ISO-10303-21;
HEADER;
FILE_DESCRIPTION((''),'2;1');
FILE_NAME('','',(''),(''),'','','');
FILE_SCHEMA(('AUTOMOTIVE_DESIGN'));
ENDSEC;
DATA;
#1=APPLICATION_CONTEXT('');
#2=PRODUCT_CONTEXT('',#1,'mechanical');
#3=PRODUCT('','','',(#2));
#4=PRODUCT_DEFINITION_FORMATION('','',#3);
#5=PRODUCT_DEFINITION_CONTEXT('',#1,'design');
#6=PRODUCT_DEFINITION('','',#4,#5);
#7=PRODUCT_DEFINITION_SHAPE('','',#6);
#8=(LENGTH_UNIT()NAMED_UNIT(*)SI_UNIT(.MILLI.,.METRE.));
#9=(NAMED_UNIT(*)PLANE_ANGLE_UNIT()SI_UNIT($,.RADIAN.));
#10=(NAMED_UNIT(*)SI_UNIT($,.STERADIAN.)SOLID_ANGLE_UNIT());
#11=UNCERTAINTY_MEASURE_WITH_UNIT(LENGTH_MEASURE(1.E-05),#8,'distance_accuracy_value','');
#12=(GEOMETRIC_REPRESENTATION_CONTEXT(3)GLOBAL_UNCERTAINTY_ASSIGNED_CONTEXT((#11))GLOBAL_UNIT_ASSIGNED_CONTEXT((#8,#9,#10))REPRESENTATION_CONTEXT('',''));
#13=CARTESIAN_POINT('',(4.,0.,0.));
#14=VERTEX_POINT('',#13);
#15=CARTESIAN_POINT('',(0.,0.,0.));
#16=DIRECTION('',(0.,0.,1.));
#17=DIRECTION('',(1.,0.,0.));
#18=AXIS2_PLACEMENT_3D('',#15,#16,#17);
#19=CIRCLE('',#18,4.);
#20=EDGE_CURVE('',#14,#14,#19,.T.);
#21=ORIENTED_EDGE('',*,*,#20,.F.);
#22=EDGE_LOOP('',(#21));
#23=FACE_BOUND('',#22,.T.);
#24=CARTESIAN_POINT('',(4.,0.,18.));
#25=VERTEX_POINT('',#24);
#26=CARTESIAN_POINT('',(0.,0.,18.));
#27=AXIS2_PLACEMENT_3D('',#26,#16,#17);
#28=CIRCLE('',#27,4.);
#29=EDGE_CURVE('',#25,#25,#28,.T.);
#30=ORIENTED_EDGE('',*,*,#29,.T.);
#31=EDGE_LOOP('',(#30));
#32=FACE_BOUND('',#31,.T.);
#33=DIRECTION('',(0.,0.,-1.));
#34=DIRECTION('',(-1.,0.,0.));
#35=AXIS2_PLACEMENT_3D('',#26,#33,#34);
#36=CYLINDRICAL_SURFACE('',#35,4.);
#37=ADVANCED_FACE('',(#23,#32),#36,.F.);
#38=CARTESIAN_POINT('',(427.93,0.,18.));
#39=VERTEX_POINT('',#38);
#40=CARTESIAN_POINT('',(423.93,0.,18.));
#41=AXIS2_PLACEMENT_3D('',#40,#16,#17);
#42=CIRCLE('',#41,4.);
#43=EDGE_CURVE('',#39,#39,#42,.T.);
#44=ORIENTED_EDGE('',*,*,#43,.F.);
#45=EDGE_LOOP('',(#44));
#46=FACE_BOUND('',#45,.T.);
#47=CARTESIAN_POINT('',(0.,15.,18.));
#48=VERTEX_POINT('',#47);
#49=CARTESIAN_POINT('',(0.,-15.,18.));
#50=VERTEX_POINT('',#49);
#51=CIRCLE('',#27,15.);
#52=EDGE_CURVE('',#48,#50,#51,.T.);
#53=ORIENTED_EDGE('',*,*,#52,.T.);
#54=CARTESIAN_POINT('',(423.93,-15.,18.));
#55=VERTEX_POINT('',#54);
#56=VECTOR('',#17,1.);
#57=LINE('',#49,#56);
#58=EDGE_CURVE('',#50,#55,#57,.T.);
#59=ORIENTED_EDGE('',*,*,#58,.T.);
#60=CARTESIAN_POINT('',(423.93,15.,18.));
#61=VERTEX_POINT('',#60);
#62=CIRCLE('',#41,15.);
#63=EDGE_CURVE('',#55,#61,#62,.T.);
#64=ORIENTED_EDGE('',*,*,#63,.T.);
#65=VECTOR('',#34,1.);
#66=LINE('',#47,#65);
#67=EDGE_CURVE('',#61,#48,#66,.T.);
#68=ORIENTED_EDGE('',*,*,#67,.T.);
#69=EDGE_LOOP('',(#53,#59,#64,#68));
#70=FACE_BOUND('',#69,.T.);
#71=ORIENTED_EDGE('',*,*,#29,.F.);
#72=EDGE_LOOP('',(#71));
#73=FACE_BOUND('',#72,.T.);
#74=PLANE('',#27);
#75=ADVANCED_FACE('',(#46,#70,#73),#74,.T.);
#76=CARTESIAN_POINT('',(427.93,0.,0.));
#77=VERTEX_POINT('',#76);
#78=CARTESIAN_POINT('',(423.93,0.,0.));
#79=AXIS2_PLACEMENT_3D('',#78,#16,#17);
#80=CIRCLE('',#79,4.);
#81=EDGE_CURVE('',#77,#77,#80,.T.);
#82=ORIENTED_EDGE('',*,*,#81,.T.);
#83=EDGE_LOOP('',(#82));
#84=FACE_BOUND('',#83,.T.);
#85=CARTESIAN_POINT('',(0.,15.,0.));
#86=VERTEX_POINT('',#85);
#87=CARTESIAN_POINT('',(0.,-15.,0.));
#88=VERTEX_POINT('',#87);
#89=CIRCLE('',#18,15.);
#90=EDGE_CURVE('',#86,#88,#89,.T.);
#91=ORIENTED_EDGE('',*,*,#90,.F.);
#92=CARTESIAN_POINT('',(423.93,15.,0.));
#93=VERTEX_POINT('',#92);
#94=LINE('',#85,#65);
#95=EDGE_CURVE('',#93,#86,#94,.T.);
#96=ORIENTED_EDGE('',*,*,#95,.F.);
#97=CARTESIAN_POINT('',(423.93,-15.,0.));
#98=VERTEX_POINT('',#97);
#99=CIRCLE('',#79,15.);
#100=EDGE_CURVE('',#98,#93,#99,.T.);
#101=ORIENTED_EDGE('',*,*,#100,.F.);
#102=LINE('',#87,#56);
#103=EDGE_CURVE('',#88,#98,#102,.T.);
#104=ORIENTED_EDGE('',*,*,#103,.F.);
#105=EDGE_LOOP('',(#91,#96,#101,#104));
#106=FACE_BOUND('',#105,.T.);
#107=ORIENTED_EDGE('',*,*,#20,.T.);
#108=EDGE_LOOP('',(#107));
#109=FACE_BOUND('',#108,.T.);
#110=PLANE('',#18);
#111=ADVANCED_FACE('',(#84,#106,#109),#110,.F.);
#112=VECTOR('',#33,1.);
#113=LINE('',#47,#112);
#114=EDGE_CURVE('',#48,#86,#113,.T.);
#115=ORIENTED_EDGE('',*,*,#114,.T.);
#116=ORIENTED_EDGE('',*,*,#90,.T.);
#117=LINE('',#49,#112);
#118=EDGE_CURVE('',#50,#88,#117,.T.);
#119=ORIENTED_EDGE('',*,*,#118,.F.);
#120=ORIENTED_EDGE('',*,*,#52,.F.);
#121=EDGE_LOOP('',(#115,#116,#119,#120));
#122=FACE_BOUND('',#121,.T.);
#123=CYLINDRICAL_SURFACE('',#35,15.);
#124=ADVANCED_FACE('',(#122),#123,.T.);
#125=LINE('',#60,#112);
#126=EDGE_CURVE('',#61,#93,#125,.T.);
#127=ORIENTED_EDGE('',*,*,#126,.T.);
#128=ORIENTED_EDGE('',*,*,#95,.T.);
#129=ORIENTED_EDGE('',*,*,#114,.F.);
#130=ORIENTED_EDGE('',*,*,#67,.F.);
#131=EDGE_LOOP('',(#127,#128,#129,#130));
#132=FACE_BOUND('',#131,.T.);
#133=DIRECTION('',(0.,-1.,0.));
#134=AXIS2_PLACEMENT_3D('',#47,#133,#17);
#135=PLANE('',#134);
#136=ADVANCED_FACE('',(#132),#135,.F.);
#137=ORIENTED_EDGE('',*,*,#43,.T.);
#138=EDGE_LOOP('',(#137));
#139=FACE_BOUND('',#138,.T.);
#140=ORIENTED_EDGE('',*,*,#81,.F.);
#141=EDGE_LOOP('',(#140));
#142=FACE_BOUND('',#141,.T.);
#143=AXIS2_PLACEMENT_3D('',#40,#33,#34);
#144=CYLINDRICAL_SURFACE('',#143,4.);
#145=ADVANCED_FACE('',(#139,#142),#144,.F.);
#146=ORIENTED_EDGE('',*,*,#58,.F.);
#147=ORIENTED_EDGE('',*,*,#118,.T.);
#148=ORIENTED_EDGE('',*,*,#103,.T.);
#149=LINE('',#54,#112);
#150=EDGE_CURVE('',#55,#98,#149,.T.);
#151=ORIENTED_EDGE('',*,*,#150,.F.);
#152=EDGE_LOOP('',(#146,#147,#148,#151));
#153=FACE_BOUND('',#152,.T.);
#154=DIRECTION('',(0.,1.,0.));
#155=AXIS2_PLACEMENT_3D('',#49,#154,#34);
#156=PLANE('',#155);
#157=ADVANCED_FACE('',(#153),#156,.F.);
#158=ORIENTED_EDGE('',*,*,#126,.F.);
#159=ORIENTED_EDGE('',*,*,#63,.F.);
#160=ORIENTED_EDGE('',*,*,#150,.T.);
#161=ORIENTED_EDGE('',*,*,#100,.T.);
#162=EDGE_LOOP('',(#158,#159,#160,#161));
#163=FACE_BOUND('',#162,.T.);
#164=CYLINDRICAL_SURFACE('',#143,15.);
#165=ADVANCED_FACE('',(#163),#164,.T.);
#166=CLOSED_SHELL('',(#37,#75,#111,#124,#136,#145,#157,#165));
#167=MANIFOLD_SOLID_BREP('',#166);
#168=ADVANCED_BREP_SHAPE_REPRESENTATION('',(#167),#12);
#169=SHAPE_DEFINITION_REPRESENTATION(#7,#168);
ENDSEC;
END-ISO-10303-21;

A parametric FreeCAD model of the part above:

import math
import FreeCAD as App
import Part
import Sketcher
from FreeCAD import Vector
Q = App.Units.Quantity

doc = App.newDocument("Part")
body = doc.addObject("PartDesign::Body", "Body")

# Sketch on XY plane
sketch1 = body.newObject("Sketcher::SketchObject", "Sketch")
sketch1.AttachmentSupport = (doc.getObject("XY_Plane"), [""])
sketch1.MapMode = "FlatFace"
sketch1.addGeometry(Part.LineSegment(Vector(423.9, 15, 0), Vector(0, 15, 0)), False)
sketch1.addGeometry(Part.ArcOfCircle(Part.Circle(Vector(0, 0, 0), Vector(0, 0, 1), 15), math.radians(90), math.radians(270)), False)
sketch1.addGeometry(Part.LineSegment(Vector(0, -15, 0), Vector(423.9, -15, 0)), False)
sketch1.addGeometry(Part.ArcOfCircle(Part.Circle(Vector(423.9, 0, 0), Vector(0, 0, 1), 15), math.radians(-90), math.radians(90)), False)
sketch1.addGeometry(Part.Circle(Vector(423.9, 0, 0), Vector(0, 0, 1), 4), False)
sketch1.addGeometry(Part.Circle(Vector(0, 0, 0), Vector(0, 0, 1), 4), False)
sketch1.addConstraint(Sketcher.Constraint("Tangent", 0, 2, 1, 1))
sketch1.addConstraint(Sketcher.Constraint("Tangent", 1, 2, 2, 1))
sketch1.addConstraint(Sketcher.Constraint("Tangent", 2, 2, 3, 1))
sketch1.addConstraint(Sketcher.Constraint("Tangent", 3, 2, 0, 1))
sketch1.addConstraint(Sketcher.Constraint("Horizontal", 0))
sketch1.addConstraint(Sketcher.Constraint("Horizontal", 2))
sketch1.addConstraint(Sketcher.Constraint("Coincident", 1, 3, -1, 1))
sketch1.addConstraint(Sketcher.Constraint("Coincident", 5, 3, -1, 1))
sketch1.addConstraint(Sketcher.Constraint("Coincident", 4, 3, 3, 3))
sketch1.addConstraint(Sketcher.Constraint("Equal", 4, 5))
sketch1.addConstraint(Sketcher.Constraint("Diameter", 4, Q("8 mm")))
sketch1.addConstraint(Sketcher.Constraint("Radius", 1, Q("15 mm")))
sketch1.addConstraint(Sketcher.Constraint("DistanceX", 0, 2, 0, 1, Q("423.93 mm")))
pad1 = body.newObject("PartDesign::Pad", "Pad")
pad1.Profile = sketch1
pad1.Length = 18

doc.recompute()
